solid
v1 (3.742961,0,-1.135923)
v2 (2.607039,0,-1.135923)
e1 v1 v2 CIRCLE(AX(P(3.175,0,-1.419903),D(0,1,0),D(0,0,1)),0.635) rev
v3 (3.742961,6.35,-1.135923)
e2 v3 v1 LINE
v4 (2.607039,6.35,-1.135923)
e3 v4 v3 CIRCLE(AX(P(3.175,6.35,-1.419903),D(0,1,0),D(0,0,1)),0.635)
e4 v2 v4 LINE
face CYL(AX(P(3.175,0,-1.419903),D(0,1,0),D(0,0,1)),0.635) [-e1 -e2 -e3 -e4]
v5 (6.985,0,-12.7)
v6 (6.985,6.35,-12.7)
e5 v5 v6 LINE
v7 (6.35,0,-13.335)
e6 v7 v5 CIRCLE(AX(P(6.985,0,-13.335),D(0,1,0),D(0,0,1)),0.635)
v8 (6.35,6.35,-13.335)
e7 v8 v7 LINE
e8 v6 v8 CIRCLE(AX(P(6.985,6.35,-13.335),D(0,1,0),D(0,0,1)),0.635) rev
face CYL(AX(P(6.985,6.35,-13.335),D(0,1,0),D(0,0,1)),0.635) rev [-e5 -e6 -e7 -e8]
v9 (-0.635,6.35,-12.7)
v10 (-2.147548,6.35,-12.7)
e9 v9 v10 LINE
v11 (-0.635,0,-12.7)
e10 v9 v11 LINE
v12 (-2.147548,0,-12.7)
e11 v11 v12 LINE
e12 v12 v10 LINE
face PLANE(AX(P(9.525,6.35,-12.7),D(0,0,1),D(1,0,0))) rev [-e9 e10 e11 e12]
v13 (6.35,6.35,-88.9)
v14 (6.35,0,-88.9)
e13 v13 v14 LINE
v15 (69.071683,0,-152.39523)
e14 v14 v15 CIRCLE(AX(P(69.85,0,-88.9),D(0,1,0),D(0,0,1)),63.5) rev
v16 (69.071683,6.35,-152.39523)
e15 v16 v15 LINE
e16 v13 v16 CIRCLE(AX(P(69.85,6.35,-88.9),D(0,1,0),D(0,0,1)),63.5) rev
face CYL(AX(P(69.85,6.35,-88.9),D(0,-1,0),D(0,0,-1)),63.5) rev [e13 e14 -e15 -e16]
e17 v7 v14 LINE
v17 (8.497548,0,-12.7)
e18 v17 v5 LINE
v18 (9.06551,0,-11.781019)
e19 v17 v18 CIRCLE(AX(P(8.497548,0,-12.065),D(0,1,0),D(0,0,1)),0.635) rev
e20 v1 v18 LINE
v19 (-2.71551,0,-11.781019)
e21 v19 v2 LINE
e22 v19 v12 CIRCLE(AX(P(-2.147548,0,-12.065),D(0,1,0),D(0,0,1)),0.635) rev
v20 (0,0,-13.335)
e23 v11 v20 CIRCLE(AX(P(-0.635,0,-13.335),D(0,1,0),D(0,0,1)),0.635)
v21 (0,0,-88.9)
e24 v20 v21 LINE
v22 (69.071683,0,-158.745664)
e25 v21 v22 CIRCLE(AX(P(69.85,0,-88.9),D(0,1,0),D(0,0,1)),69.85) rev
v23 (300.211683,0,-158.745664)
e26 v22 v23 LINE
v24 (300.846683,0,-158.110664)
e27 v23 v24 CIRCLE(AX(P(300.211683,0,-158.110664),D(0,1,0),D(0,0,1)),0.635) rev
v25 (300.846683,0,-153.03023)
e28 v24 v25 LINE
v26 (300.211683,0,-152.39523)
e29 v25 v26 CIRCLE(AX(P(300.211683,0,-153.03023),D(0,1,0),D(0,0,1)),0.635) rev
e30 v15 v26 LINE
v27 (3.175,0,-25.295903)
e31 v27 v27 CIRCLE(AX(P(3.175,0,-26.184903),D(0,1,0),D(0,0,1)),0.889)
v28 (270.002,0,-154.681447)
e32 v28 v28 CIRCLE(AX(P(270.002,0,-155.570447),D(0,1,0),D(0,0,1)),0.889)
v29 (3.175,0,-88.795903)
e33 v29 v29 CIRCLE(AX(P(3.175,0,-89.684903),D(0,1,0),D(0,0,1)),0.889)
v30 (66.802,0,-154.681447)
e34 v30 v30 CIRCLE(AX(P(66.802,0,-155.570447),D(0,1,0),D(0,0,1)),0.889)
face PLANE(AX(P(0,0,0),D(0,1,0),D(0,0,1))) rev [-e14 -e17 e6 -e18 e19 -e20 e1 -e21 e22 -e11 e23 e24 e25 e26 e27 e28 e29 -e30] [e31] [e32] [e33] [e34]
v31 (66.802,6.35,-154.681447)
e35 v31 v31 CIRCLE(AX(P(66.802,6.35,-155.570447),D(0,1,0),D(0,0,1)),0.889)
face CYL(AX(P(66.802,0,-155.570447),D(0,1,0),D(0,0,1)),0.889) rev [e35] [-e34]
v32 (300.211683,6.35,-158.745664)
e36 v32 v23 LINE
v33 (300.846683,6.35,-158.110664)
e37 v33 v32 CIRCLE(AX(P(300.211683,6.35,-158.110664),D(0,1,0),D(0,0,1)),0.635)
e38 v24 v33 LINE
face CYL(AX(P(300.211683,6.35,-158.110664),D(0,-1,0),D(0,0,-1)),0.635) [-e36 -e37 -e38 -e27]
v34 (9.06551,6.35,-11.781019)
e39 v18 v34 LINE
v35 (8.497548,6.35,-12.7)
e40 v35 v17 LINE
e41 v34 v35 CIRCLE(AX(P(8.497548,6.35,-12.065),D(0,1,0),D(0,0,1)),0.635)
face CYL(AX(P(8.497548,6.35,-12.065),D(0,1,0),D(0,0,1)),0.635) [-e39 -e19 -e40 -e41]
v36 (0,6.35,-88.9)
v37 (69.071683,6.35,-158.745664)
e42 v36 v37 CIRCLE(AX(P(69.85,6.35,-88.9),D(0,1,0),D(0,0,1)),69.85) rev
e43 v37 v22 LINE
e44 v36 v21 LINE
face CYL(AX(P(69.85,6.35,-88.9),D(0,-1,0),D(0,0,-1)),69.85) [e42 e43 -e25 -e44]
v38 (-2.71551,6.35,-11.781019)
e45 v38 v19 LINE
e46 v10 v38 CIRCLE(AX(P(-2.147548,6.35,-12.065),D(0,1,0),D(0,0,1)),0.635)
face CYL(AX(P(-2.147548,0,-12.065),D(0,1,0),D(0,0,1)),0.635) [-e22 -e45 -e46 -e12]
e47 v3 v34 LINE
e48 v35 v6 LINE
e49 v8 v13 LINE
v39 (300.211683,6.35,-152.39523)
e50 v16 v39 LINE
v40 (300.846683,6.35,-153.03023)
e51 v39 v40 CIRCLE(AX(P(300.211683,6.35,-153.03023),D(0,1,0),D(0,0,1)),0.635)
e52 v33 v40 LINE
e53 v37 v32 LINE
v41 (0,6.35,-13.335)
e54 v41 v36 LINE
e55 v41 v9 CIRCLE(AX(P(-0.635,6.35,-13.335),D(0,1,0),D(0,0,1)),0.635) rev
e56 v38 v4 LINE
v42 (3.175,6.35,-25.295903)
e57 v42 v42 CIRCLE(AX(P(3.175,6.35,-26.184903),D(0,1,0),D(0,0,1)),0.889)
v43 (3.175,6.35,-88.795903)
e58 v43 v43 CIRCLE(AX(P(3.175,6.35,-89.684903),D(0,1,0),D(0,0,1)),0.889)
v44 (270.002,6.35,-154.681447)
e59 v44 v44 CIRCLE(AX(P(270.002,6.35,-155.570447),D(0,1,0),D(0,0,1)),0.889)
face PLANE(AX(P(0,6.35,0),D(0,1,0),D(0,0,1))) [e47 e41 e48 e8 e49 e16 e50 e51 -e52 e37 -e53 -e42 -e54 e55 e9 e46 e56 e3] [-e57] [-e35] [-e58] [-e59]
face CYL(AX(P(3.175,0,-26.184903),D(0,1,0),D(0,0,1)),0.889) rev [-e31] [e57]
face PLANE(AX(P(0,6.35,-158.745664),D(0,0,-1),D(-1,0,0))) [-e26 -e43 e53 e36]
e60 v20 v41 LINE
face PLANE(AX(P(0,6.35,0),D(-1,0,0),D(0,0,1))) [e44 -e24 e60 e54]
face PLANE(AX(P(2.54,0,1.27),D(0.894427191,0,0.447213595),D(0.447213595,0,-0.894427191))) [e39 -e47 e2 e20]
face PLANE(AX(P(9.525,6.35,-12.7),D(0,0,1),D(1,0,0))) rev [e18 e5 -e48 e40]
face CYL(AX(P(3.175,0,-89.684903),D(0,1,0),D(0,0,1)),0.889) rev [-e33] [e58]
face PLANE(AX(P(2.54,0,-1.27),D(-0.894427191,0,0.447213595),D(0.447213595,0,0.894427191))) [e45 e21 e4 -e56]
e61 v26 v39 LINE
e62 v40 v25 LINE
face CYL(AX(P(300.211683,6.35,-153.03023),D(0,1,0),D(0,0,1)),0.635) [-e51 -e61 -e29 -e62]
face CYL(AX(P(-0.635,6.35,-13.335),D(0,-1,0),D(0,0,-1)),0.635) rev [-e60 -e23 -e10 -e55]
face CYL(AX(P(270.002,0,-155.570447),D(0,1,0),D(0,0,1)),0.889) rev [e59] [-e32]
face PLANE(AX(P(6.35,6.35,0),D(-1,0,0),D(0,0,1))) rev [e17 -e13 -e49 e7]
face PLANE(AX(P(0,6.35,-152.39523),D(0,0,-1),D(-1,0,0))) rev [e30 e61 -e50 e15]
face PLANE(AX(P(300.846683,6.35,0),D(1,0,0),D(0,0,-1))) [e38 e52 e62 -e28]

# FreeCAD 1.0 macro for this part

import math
import FreeCAD as App
import Part
import Sketcher
from FreeCAD import Vector
Q = App.Units.Quantity


def edges_at(feature, points):
    """Names of the edges that pass closest to the given points."""
    edges = feature.Shape.Edges
    near = lambda p: min(range(len(edges)), key=lambda i: edges[i].distToShape(Part.Vertex(*p))[0])
    return sorted({f"Edge{near(p) + 1}" for p in points})

doc = App.newDocument("Part")
body = doc.addObject("PartDesign::Body", "Body")

# Sketch on XZ plane
sketch1 = body.newObject("Sketcher::SketchObject", "Sketch")
sketch1.AttachmentSupport = (doc.getObject("XZ_Plane"), [""])
sketch1.MapMode = "FlatFace"
sketch1.addGeometry(Part.LineSegment(Vector(69.071683, -152.39523, 0), Vector(300.846683, -152.39523, 0)), False)
sketch1.addGeometry(Part.LineSegment(Vector(300.846683, -152.39523, 0), Vector(300.846683, -158.745664, 0)), False)
sketch1.addGeometry(Part.LineSegment(Vector(300.846683, -158.745664, 0), Vector(69.071683, -158.745664, 0)), False)
sketch1.addGeometry(Part.ArcOfCircle(Part.Circle(Vector(69.85, -88.9, 0), Vector(0, 0, 1), 69.85), math.radians(180), math.radians(269.361557)), False)
sketch1.addGeometry(Part.LineSegment(Vector(0, -88.9, 0), Vector(0, -12.7, 0)), False)
sketch1.addGeometry(Part.LineSegment(Vector(0, -12.7, 0), Vector(-3.175, -12.7, 0)), False)
sketch1.addGeometry(Part.LineSegment(Vector(-3.175, -12.7, 0), Vector(-3.175, 0, 0)), False)
sketch1.addGeometry(Part.LineSegment(Vector(-3.175, 0, 0), Vector(9.525, 0, 0)), False)
sketch1.addGeometry(Part.LineSegment(Vector(9.525, 0, 0), Vector(9.525, -12.7, 0)), False)
sketch1.addGeometry(Part.LineSegment(Vector(9.525, -12.7, 0), Vector(6.35, -12.7, 0)), False)
sketch1.addGeometry(Part.LineSegment(Vector(6.35, -12.7, 0), Vector(6.35, -88.9, 0)), False)
sketch1.addGeometry(Part.ArcOfCircle(Part.Circle(Vector(69.85, -88.9, 0), Vector(0, 0, 1), 63.5), math.radians(-180), math.radians(-90.70229)), False)
sketch1.addConstraint(Sketcher.Constraint("Coincident", 0, 2, 1, 1))
sketch1.addConstraint(Sketcher.Constraint("Coincident", 1, 2, 2, 1))
sketch1.addConstraint(Sketcher.Constraint("Coincident", 2, 2, 3, 2))
sketch1.addConstraint(Sketcher.Constraint("Tangent", 3, 1, 4, 1))
sketch1.addConstraint(Sketcher.Constraint("Coincident", 4, 2, 5, 1))
sketch1.addConstraint(Sketcher.Constraint("Coincident", 5, 2, 6, 1))
sketch1.addConstraint(Sketcher.Constraint("Coincident", 6, 2, 7, 1))
sketch1.addConstraint(Sketcher.Constraint("Coincident", 7, 2, 8, 1))
sketch1.addConstraint(Sketcher.Constraint("Coincident", 8, 2, 9, 1))
sketch1.addConstraint(Sketcher.Constraint("Coincident", 9, 2, 10, 1))
sketch1.addConstraint(Sketcher.Constraint("Tangent", 10, 2, 11, 1))
sketch1.addConstraint(Sketcher.Constraint("Coincident", 11, 2, 0, 1))
sketch1.addConstraint(Sketcher.Constraint("Horizontal", 0))
sketch1.addConstraint(Sketcher.Constraint("Vertical", 1))
sketch1.addConstraint(Sketcher.Constraint("Horizontal", 2))
sketch1.addConstraint(Sketcher.Constraint("Vertical", 4))
sketch1.addConstraint(Sketcher.Constraint("Horizontal", 5))
sketch1.addConstraint(Sketcher.Constraint("Vertical", 6))
sketch1.addConstraint(Sketcher.Constraint("Horizontal", 7))
sketch1.addConstraint(Sketcher.Constraint("Vertical", 8))
sketch1.addConstraint(Sketcher.Constraint("Horizontal", 9))
sketch1.addConstraint(Sketcher.Constraint("Vertical", 10))
sketch1.addConstraint(Sketcher.Constraint("Coincident", 11, 3, 3, 3))
sketch1.addConstraint(Sketcher.Constraint("PointOnObject", 3, 1, -2))
sketch1.addConstraint(Sketcher.Constraint("PointOnObject", 6, 2, -1))
sketch1.addConstraint(Sketcher.Constraint("Horizontal", 5, 2, 8, 2))
sketch1.addConstraint(Sketcher.Constraint("Vertical", 2, 2, 11, 2))
sketch1.addConstraint(Sketcher.Constraint("Equal", 5, 9))
sketch1.addConstraint(Sketcher.Constraint("Equal", 7, 6))
sketch1.addConstraint(Sketcher.Constraint("Radius", 11, Q("2.5 in")))
sketch1.addConstraint(Sketcher.Constraint("DistanceY", 4, 1, 4, 2, Q("3 in")))
sketch1.addConstraint(Sketcher.Constraint("Radius", 3, Q("2.75 in")))
sketch1.addConstraint(Sketcher.Constraint("DistanceX", 7, 1, 7, 2, Q("0.5 in")))
sketch1.addConstraint(Sketcher.Constraint("DistanceX", 0, 1, 0, 2, Q("9.125 in")))
sketch1.addConstraint(Sketcher.Constraint("DistanceY", 0, 2, -1, 1, 152.39523))
pad1 = body.newObject("PartDesign::Pad", "Pad")
pad1.Profile = sketch1
pad1.Length = Q("0.25 in")
pad1.Reversed = True

# Sketch on XZ plane
sketch2 = body.newObject("Sketcher::SketchObject", "Sketch001")
sketch2.AttachmentSupport = (doc.getObject("XZ_Plane"), [""])
sketch2.MapMode = "FlatFace"
sketch2.AttachmentOffset = App.Placement(Vector(0, 0, -0.25 * 25.4), App.Rotation())
sketch2.addGeometry(Part.LineSegment(Vector(3.175, 0, 0), Vector(-3.175, -12.7, 0)), False)
sketch2.addGeometry(Part.LineSegment(Vector(-3.175, -12.7, 0), Vector(-3.175, 0, 0)), False)
sketch2.addGeometry(Part.LineSegment(Vector(-3.175, 0, 0), Vector(3.175, 0, 0)), False)
sketch2.addGeometry(Part.LineSegment(Vector(9.525, -12.7, 0), Vector(3.175, 0, 0)), False)
sketch2.addGeometry(Part.LineSegment(Vector(3.175, 0, 0), Vector(9.525, 0, 0)), False)
sketch2.addGeometry(Part.LineSegment(Vector(9.525, 0, 0), Vector(9.525, -12.7, 0)), False)
sketch2.addConstraint(Sketcher.Constraint("Coincident", 0, 2, 1, 1))
sketch2.addConstraint(Sketcher.Constraint("Coincident", 1, 2, 2, 1))
sketch2.addConstraint(Sketcher.Constraint("Coincident", 2, 2, 0, 1))
sketch2.addConstraint(Sketcher.Constraint("Coincident", 3, 2, 4, 1))
sketch2.addConstraint(Sketcher.Constraint("Coincident", 4, 2, 5, 1))
sketch2.addConstraint(Sketcher.Constraint("Coincident", 5, 2, 3, 1))
sketch2.addConstraint(Sketcher.Constraint("Vertical", 1))
sketch2.addConstraint(Sketcher.Constraint("Horizontal", 2))
sketch2.addConstraint(Sketcher.Constraint("Horizontal", 4))
sketch2.addConstraint(Sketcher.Constraint("Vertical", 5))
sketch2.addConstraint(Sketcher.Constraint("Coincident", 3, 2, 2, 2))
sketch2.addConstraint(Sketcher.Constraint("Symmetric", 1, 2, 2, 2, -1, 1))
sketch2.addConstraint(Sketcher.Constraint("Horizontal", 0, 2, 5, 2))
sketch2.addConstraint(Sketcher.Constraint("Equal", 2, 4))
sketch2.addConstraint(Sketcher.Constraint("DistanceY", 1, 1, 1, 2, Q("0.5 in")))
sketch2.addConstraint(Sketcher.Constraint("DistanceX", 2, 1, 2, 2, Q("0.25 in")))
pocket1 = body.newObject("PartDesign::Pocket", "Pocket")
pocket1.Profile = sketch2
pocket1.Type = "ThroughAll"
pocket1.Reversed = True
doc.recompute()

fillet = body.newObject("PartDesign::Fillet", "Fillet")
fillet.Base = (pocket1, edges_at(pocket1, [
    (0, 3.175, -12.7),
    (300.847, 3.175, -158.746),
    (300.847, 3.175, -152.395),
    (6.35, 3.175, -12.7),
    (-3.175, 3.175, -12.7),
    (9.525, 3.175, -12.7),
    (3.175, 3.175, 0),
]))
fillet.Radius = Q("0.025 in")

# Sketch on XZ plane
sketch3 = body.newObject("Sketcher::SketchObject", "Sketch002")
sketch3.AttachmentSupport = (doc.getObject("XZ_Plane"), [""])
sketch3.MapMode = "FlatFace"
sketch3.AttachmentOffset = App.Placement(Vector(0, 0, -0.25 * 25.4), App.Rotation())
sketch3.addGeometry(Part.Circle(Vector(3.175, -26.184903, 0), Vector(0, 0, 1), 0.889), False)
sketch3.addGeometry(Part.Circle(Vector(3.175, -89.684903, 0), Vector(0, 0, 1), 0.889), False)
sketch3.addGeometry(Part.Circle(Vector(66.802, -155.570447, 0), Vector(0, 0, 1), 0.889), False)
sketch3.addGeometry(Part.Circle(Vector(270.002, -155.570447, 0), Vector(0, 0, 1), 0.889), False)
sketch3.addConstraint(Sketcher.Constraint("Equal", 0, 1))
sketch3.addConstraint(Sketcher.Constraint("Equal", 1, 2))
sketch3.addConstraint(Sketcher.Constraint("Equal", 2, 3))
sketch3.addConstraint(Sketcher.Constraint("Horizontal", 2, 3, 3, 3))
sketch3.addConstraint(Sketcher.Constraint("Vertical", 0, 3, 1, 3))
sketch3.addConstraint(Sketcher.Constraint("Diameter", 0, Q("0.07 in")))
sketch3.addConstraint(Sketcher.Constraint("DistanceX", 2, 3, 3, 3, Q("8 in")))
sketch3.addConstraint(Sketcher.Constraint("DistanceY", 1, 3, 0, 3, Q("2.5 in")))
sketch3.addConstraint(Sketcher.Constraint("DistanceX", -1, 1, 2, 3, Q("2.63 in")))
sketch3.addConstraint(Sketcher.Constraint("DistanceX", -1, 1, 0, 3, Q("0.125 in")))
sketch3.addConstraint(Sketcher.Constraint("DistanceY", 0, 3, -1, 1, 26.184903))
sketch3.addConstraint(Sketcher.Constraint("DistanceY", 2, 3, -1, 1, 155.570447))
pocket2 = body.newObject("PartDesign::Pocket", "Pocket001")
pocket2.Profile = sketch3
pocket2.Type = "ThroughAll"
pocket2.Reversed = True

doc.recompute()
